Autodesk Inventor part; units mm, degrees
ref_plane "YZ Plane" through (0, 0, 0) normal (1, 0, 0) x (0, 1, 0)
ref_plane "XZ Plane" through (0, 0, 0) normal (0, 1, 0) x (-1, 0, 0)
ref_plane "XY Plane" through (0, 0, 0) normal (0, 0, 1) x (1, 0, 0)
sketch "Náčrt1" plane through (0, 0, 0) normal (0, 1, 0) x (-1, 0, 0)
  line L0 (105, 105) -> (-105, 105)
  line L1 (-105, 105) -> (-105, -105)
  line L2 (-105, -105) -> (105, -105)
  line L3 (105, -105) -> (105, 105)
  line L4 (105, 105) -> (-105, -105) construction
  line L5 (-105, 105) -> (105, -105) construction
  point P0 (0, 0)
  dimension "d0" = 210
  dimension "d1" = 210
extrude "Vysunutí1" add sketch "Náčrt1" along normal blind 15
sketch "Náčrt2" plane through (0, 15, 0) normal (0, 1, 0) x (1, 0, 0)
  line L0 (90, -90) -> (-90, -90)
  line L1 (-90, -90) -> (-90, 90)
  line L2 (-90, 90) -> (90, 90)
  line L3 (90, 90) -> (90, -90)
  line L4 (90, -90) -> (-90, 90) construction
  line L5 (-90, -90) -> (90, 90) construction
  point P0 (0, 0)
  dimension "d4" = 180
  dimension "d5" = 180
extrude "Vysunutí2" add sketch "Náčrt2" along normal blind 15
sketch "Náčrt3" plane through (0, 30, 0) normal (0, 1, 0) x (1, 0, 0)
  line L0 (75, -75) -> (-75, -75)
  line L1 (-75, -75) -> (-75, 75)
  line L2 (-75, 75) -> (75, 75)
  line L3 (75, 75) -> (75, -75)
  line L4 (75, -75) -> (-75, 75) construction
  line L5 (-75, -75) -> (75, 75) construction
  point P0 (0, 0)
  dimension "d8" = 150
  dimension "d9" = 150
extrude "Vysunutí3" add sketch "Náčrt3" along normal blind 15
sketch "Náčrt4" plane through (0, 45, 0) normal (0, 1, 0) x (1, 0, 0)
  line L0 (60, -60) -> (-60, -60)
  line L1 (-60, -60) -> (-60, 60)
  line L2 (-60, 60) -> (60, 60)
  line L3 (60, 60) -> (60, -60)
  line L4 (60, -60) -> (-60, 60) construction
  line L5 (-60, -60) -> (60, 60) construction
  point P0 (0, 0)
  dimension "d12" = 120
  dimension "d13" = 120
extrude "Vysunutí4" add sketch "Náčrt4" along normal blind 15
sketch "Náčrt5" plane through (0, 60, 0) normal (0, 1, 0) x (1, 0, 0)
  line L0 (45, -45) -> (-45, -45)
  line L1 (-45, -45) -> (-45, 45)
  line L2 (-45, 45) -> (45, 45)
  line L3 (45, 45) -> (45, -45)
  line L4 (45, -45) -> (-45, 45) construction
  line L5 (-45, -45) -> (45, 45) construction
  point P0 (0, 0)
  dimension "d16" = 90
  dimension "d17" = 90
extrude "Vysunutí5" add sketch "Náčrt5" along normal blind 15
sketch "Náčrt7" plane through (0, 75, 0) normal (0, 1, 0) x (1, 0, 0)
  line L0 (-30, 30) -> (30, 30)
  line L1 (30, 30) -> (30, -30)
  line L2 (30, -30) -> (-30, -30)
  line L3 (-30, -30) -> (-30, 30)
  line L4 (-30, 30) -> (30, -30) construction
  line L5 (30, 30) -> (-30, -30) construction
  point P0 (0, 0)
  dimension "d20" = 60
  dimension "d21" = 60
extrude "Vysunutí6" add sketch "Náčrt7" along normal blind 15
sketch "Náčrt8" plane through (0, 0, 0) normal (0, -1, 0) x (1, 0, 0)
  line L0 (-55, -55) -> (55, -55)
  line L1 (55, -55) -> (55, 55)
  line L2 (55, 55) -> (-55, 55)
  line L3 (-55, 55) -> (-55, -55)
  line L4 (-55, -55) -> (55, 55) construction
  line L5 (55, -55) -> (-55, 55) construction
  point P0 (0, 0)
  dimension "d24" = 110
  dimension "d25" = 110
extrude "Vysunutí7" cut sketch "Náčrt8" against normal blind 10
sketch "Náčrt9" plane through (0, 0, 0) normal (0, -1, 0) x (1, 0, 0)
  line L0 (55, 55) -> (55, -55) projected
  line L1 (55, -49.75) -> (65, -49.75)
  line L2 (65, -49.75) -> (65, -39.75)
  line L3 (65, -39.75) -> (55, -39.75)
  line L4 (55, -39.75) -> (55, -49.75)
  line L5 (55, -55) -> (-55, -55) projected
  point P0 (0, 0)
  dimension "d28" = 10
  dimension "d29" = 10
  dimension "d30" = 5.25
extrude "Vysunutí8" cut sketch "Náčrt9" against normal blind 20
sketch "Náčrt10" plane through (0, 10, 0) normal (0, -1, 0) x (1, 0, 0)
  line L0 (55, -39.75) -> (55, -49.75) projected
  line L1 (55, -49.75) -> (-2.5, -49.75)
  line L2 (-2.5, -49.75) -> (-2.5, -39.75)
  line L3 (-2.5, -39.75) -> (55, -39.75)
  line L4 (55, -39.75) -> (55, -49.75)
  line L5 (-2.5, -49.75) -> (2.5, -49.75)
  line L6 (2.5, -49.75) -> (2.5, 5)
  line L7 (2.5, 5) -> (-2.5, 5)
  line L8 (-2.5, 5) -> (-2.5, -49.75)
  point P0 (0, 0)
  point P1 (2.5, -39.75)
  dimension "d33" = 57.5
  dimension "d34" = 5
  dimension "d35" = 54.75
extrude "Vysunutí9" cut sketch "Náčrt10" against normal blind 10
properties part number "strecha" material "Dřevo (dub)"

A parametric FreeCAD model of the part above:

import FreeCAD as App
import Part
import Sketcher
Q = App.Units.Quantity


def add_polygon(sketch, points):
    """Adds a closed chain of lines whose ends are joined by coincident constraints."""
    first, n = sketch.GeometryCount, len(points)
    for a, b in zip(points, points[1:] + points[:1]):
        sketch.addGeometry(Part.LineSegment(App.Vector(*a, 0), App.Vector(*b, 0)), False)
    for i in range(n):
        sketch.addConstraint(Sketcher.Constraint("Coincident", first + i, 2, first + (i + 1) % n, 1))

doc = App.newDocument("Part")
body = doc.addObject("PartDesign::Body", "Body")

sketch1 = body.newObject("Sketcher::SketchObject", "Sketch")
sketch1.AttachmentSupport = (doc.getObject("XZ_Plane"), [""])
sketch1.MapMode = "FlatFace"
add_polygon(sketch1, [(-105, -105), (-105, 105), (105, 105), (105, -105)])
sketch1.addConstraint([
    Sketcher.Constraint("Vertical", 0),
    Sketcher.Constraint("Horizontal", 1),
    Sketcher.Constraint("Vertical", 2),
    Sketcher.Constraint("Horizontal", 3),
    Sketcher.Constraint("Symmetric", 0, 2, 2, 2, -1, 1),
    Sketcher.Constraint("Equal", 3, 0),
    Sketcher.Constraint("DistanceX", 1, 1, 1, 2, Q("210 mm")),
])
pad1 = body.newObject("PartDesign::Pad", "Pad")
pad1.Profile = sketch1
pad1.Length = 15
pad1.Reversed = True

sketch2 = body.newObject("Sketcher::SketchObject", "Sketch001")
sketch2.AttachmentSupport = (doc.getObject("XZ_Plane"), [""])
sketch2.MapMode = "FlatFace"
sketch2.AttachmentOffset = App.Placement(App.Vector(0, 0, -15), App.Rotation())
add_polygon(sketch2, [(-90, 90), (90, 90), (90, -90), (-90, -90)])
sketch2.addConstraint([
    Sketcher.Constraint("Horizontal", 0),
    Sketcher.Constraint("Vertical", 1),
    Sketcher.Constraint("Horizontal", 2),
    Sketcher.Constraint("Vertical", 3),
    Sketcher.Constraint("Symmetric", 0, 2, 2, 2, -1, 1),
    Sketcher.Constraint("Equal", 2, 1),
    Sketcher.Constraint("DistanceX", 0, 1, 0, 2, Q("180 mm")),
])
pad2 = body.newObject("PartDesign::Pad", "Pad001")
pad2.Profile = sketch2
pad2.Length = 15
pad2.Reversed = True

sketch3 = body.newObject("Sketcher::SketchObject", "Sketch002")
sketch3.AttachmentSupport = (doc.getObject("XZ_Plane"), [""])
sketch3.MapMode = "FlatFace"
sketch3.AttachmentOffset = App.Placement(App.Vector(0, 0, -30), App.Rotation())
add_polygon(sketch3, [(-75, 75), (75, 75), (75, -75), (-75, -75)])
sketch3.addConstraint([
    Sketcher.Constraint("Horizontal", 0),
    Sketcher.Constraint("Vertical", 1),
    Sketcher.Constraint("Horizontal", 2),
    Sketcher.Constraint("Vertical", 3),
    Sketcher.Constraint("Symmetric", 0, 2, 2, 2, -1, 1),
    Sketcher.Constraint("Equal", 2, 1),
    Sketcher.Constraint("DistanceX", 0, 1, 0, 2, Q("150 mm")),
])
pad3 = body.newObject("PartDesign::Pad", "Pad002")
pad3.Profile = sketch3
pad3.Length = 15
pad3.Reversed = True

sketch4 = body.newObject("Sketcher::SketchObject", "Sketch003")
sketch4.AttachmentSupport = (doc.getObject("XZ_Plane"), [""])
sketch4.MapMode = "FlatFace"
sketch4.AttachmentOffset = App.Placement(App.Vector(0, 0, -45), App.Rotation())
add_polygon(sketch4, [(-60, 60), (60, 60), (60, -60), (-60, -60)])
sketch4.addConstraint([
    Sketcher.Constraint("Horizontal", 0),
    Sketcher.Constraint("Vertical", 1),
    Sketcher.Constraint("Horizontal", 2),
    Sketcher.Constraint("Vertical", 3),
    Sketcher.Constraint("Symmetric", 0, 2, 2, 2, -1, 1),
    Sketcher.Constraint("Equal", 2, 1),
    Sketcher.Constraint("DistanceX", 0, 1, 0, 2, Q("120 mm")),
])
pad4 = body.newObject("PartDesign::Pad", "Pad003")
pad4.Profile = sketch4
pad4.Length = 15
pad4.Reversed = True

sketch5 = body.newObject("Sketcher::SketchObject", "Sketch004")
sketch5.AttachmentSupport = (doc.getObject("XZ_Plane"), [""])
sketch5.MapMode = "FlatFace"
sketch5.AttachmentOffset = App.Placement(App.Vector(0, 0, -60), App.Rotation())
add_polygon(sketch5, [(-45, 45), (45, 45), (45, -45), (-45, -45)])
sketch5.addConstraint([
    Sketcher.Constraint("Horizontal", 0),
    Sketcher.Constraint("Vertical", 1),
    Sketcher.Constraint("Horizontal", 2),
    Sketcher.Constraint("Vertical", 3),
    Sketcher.Constraint("Symmetric", 0, 2, 2, 2, -1, 1),
    Sketcher.Constraint("Equal", 2, 1),
    Sketcher.Constraint("DistanceX", 0, 1, 0, 2, Q("90 mm")),
])
pad5 = body.newObject("PartDesign::Pad", "Pad004")
pad5.Profile = sketch5
pad5.Length = 15
pad5.Reversed = True

sketch6 = body.newObject("Sketcher::SketchObject", "Sketch005")
sketch6.AttachmentSupport = (doc.getObject("XZ_Plane"), [""])
sketch6.MapMode = "FlatFace"
sketch6.AttachmentOffset = App.Placement(App.Vector(0, 0, -75), App.Rotation())
add_polygon(sketch6, [(30, -30), (-30, -30), (-30, 30), (30, 30)])
sketch6.addConstraint([
    Sketcher.Constraint("Horizontal", 0),
    Sketcher.Constraint("Vertical", 1),
    Sketcher.Constraint("Horizontal", 2),
    Sketcher.Constraint("Vertical", 3),
    Sketcher.Constraint("Symmetric", 0, 2, 2, 2, -1, 1),
    Sketcher.Constraint("Equal", 2, 1),
    Sketcher.Constraint("DistanceX", 0, 2, 0, 1, Q("60 mm")),
])
pad6 = body.newObject("PartDesign::Pad", "Pad005")
pad6.Profile = sketch6
pad6.Length = 15
pad6.Reversed = True

sketch7 = body.newObject("Sketcher::SketchObject", "Sketch006")
sketch7.AttachmentSupport = (doc.getObject("XZ_Plane"), [""])
sketch7.MapMode = "FlatFace"
add_polygon(sketch7, [(-55, 55), (-55, -55), (55, -55), (55, 55)])
sketch7.addConstraint([
    Sketcher.Constraint("Vertical", 0),
    Sketcher.Constraint("Horizontal", 1),
    Sketcher.Constraint("Vertical", 2),
    Sketcher.Constraint("Horizontal", 3),
    Sketcher.Constraint("Symmetric", 0, 2, 2, 2, -1, 1),
    Sketcher.Constraint("Equal", 3, 0),
    Sketcher.Constraint("DistanceX", 1, 1, 1, 2, Q("110 mm")),
])
pocket1 = body.newObject("PartDesign::Pocket", "Pocket")
pocket1.Profile = sketch7
pocket1.Length = 10

sketch8 = body.newObject("Sketcher::SketchObject", "Sketch007")
sketch8.AttachmentSupport = (doc.getObject("XZ_Plane"), [""])
sketch8.MapMode = "FlatFace"
add_polygon(sketch8, [(65, -40), (55, -40), (55, -50), (65, -50)])
sketch8.addConstraint([
    Sketcher.Constraint("Horizontal", 0),
    Sketcher.Constraint("Vertical", 1),
    Sketcher.Constraint("Horizontal", 2),
    Sketcher.Constraint("Vertical", 3),
    Sketcher.Constraint("Equal", 2, 1),
    Sketcher.Constraint("DistanceX", 0, 2, 0, 1, Q("10 mm")),
    Sketcher.Constraint("DistanceX", -1, 1, 0, 2, Q("55 mm")),
    Sketcher.Constraint("DistanceY", 0, 2, -1, 1, Q("39.75 mm")),
])
pocket2 = body.newObject("PartDesign::Pocket", "Pocket001")
pocket2.Profile = sketch8
pocket2.Length = 20

sketch9 = body.newObject("Sketcher::SketchObject", "Sketch008")
sketch9.AttachmentSupport = (doc.getObject("XZ_Plane"), [""])
sketch9.MapMode = "FlatFace"
sketch9.AttachmentOffset = App.Placement(App.Vector(0, 0, -10), App.Rotation())
add_polygon(sketch9, [(55, -50), (55, -40), (2, -40), (2, 5), (-2, 5), (-2, -50)])
sketch9.addConstraint([
    Sketcher.Constraint("Vertical", 0),
    Sketcher.Constraint("Horizontal", 1),
    Sketcher.Constraint("Vertical", 2),
    Sketcher.Constraint("Horizontal", 3),
    Sketcher.Constraint("Vertical", 4),
    Sketcher.Constraint("Horizontal", 5),
    Sketcher.Constraint("DistanceX", 3, 2, 3, 1, Q("5 mm")),
    Sketcher.Constraint("DistanceX", 5, 1, 5, 2, Q("57.5 mm")),
    Sketcher.Constraint("DistanceY", -1, 1, 2, 2, Q("5 mm")),
    Sketcher.Constraint("DistanceY", 4, 2, 4, 1, Q("54.75 mm")),
    Sketcher.Constraint("DistanceY", 0, 1, 0, 2, Q("10 mm")),
    Sketcher.Constraint("DistanceX", -1, 1, 0, 2, Q("55 mm")),
])
pocket3 = body.newObject("PartDesign::Pocket", "Pocket002")
pocket3.Profile = sketch9
pocket3.Length = 10

doc.recompute()
